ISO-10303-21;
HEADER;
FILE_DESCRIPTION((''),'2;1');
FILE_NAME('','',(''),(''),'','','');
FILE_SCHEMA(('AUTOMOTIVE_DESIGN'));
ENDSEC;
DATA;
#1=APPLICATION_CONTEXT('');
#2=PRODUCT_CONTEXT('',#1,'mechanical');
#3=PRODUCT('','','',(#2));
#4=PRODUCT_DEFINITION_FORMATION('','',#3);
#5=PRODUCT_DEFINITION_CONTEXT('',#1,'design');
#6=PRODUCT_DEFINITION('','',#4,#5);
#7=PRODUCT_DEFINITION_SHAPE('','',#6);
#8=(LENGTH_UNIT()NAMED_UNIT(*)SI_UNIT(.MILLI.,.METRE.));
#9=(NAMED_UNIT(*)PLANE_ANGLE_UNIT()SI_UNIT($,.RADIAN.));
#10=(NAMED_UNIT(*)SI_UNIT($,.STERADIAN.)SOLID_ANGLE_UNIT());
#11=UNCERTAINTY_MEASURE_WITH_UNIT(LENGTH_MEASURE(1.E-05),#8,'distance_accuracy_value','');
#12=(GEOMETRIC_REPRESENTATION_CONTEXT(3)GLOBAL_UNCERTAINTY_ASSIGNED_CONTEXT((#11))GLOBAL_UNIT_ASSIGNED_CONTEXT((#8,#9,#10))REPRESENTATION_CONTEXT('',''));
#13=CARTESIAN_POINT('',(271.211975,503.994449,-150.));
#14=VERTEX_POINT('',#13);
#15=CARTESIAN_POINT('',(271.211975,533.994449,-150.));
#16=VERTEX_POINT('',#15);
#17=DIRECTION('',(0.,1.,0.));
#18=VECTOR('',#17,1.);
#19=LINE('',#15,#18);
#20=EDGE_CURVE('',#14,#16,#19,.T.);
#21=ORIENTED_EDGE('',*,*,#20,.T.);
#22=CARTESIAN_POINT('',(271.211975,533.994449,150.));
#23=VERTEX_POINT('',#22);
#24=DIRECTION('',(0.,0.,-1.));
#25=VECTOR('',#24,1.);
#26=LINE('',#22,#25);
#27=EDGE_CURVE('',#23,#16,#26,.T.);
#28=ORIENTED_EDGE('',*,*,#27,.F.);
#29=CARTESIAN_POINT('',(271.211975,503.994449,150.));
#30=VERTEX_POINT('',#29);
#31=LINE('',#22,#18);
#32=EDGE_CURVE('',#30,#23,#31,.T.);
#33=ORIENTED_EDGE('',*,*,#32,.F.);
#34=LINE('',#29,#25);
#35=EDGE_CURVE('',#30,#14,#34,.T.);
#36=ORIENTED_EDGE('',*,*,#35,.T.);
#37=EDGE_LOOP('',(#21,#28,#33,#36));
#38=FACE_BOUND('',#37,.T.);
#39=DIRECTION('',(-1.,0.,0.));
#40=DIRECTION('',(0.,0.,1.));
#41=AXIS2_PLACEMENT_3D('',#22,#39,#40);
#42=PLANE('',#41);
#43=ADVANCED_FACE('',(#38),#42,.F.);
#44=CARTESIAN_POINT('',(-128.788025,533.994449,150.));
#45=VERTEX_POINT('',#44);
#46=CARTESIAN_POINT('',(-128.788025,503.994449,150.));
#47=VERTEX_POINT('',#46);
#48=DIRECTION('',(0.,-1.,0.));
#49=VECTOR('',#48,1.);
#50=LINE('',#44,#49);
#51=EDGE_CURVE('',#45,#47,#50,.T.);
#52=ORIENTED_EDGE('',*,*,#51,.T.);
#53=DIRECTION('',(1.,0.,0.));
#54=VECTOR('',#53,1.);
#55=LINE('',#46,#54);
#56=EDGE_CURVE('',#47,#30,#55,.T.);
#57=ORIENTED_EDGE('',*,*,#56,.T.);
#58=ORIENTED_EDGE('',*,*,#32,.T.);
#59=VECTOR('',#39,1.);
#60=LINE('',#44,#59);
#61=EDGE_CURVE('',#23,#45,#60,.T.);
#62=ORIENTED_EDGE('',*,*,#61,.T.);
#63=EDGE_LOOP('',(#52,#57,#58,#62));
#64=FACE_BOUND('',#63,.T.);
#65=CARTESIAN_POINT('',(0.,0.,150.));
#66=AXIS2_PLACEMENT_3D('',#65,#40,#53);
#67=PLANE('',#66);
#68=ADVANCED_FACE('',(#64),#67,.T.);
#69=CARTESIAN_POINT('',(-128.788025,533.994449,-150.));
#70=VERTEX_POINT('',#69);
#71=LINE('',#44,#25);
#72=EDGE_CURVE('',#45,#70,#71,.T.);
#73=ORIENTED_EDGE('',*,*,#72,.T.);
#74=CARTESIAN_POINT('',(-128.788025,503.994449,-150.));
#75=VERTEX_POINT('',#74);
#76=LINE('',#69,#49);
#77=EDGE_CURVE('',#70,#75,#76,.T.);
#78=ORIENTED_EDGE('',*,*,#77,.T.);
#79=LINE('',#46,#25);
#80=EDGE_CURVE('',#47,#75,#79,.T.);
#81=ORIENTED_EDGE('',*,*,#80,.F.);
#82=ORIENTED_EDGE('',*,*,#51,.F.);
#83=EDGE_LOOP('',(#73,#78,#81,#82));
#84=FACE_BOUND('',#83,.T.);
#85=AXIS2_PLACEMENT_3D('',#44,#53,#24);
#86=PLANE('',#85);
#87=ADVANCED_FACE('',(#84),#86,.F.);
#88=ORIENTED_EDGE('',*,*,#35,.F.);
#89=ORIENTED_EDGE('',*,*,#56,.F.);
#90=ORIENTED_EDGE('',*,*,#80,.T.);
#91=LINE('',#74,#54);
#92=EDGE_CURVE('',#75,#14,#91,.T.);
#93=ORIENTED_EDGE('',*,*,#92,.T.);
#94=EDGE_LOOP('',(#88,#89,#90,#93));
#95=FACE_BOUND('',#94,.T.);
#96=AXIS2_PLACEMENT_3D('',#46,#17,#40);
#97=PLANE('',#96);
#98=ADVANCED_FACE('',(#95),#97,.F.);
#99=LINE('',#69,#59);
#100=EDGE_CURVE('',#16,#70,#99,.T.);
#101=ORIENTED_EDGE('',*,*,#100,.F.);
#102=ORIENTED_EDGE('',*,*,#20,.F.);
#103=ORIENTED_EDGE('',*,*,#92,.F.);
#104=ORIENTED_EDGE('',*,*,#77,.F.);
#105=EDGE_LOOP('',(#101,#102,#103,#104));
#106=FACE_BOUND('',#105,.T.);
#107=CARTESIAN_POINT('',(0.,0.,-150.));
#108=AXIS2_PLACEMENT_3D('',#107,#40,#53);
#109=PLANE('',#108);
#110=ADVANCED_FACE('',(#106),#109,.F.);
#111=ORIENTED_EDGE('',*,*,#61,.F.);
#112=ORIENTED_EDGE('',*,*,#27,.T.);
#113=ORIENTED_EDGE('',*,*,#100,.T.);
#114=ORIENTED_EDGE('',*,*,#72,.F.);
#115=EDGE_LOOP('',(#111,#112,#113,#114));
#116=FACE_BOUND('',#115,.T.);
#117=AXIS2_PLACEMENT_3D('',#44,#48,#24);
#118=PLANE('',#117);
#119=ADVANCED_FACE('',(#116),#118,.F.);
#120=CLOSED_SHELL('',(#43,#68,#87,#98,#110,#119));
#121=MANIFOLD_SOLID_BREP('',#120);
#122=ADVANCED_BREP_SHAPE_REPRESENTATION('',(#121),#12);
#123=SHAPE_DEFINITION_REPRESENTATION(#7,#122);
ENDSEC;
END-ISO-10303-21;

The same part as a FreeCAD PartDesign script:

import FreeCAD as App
import Part
import Sketcher
Q = App.Units.Quantity

doc = App.newDocument("Part")
body = doc.addObject("PartDesign::Body", "Body")

# Sketch on XY plane
sketch1 = body.newObject("Sketcher::SketchObject", "Sketch")
sketch1.AttachmentSupport = (doc.getObject("XY_Plane"), [""])
sketch1.MapMode = "FlatFace"
sketch1.addGeometry(Part.LineSegment(App.Vector(-129, 534, 0), App.Vector(-129, 504, 0)), False)
sketch1.addGeometry(Part.LineSegment(App.Vector(-129, 504, 0), App.Vector(271, 504, 0)), False)
sketch1.addGeometry(Part.LineSegment(App.Vector(271, 504, 0), App.Vector(271, 534, 0)), False)
sketch1.addGeometry(Part.LineSegment(App.Vector(271, 534, 0), App.Vector(-129, 534, 0)), False)
sketch1.addConstraint(Sketcher.Constraint("Coincident", 0, 2, 1, 1))
sketch1.addConstraint(Sketcher.Constraint("Coincident", 1, 2, 2, 1))
sketch1.addConstraint(Sketcher.Constraint("Coincident", 2, 2, 3, 1))
sketch1.addConstraint(Sketcher.Constraint("Coincident", 3, 2, 0, 1))
sketch1.addConstraint(Sketcher.Constraint("Vertical", 0))
sketch1.addConstraint(Sketcher.Constraint("Horizontal", 1))
sketch1.addConstraint(Sketcher.Constraint("Vertical", 2))
sketch1.addConstraint(Sketcher.Constraint("Horizontal", 3))
sketch1.addConstraint(Sketcher.Constraint("DistanceX", 1, 1, 1, 2, Q("400 mm")))
sketch1.addConstraint(Sketcher.Constraint("DistanceY", 0, 2, 0, 1, Q("30 mm")))
sketch1.addConstraint(Sketcher.Constraint("DistanceY", -1, 1, 0, 2, Q("503.994449 mm")))
sketch1.addConstraint(Sketcher.Constraint("DistanceX", 0, 2, -1, 1, Q("128.788025 mm")))
pad1 = body.newObject("PartDesign::Pad", "Pad")
pad1.Profile = sketch1
pad1.Length = 300
pad1.Midplane = True

doc.recompute()
